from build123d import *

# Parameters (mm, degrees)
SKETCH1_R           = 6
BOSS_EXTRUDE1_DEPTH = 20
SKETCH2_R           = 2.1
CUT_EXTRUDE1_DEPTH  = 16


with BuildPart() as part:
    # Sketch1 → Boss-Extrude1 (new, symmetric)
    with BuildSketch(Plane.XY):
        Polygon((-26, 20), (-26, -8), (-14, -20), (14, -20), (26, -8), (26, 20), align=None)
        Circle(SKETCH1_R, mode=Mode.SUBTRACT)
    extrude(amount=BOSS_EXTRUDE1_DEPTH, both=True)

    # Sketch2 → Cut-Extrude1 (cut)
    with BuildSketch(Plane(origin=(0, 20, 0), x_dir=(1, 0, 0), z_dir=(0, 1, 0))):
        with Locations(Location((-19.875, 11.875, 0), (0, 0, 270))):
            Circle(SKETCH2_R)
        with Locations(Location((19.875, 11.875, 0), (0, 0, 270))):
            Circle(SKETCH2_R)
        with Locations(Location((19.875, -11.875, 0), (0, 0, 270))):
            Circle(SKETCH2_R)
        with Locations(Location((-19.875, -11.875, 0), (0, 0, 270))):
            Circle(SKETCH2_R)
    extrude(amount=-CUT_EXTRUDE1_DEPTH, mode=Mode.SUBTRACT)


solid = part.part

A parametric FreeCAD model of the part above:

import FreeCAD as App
import Part
import Sketcher

V = App.Vector


def add_polygon(sketch, points):
    """Adds a closed chain of lines whose ends are joined by coincident constraints."""
    first, n = sketch.GeometryCount, len(points)
    for a, b in zip(points, points[1:] + points[:1]):
        sketch.addGeometry(Part.LineSegment(App.Vector(*a, 0), App.Vector(*b, 0)), False)
    for i in range(n):
        sketch.addConstraint(Sketcher.Constraint("Coincident", first + i, 2, first + (i + 1) % n, 1))

doc = App.newDocument("Part")
body = doc.addObject("PartDesign::Body", "Body")

sketch1 = body.newObject("Sketcher::SketchObject", "Sketch")
sketch1.AttachmentSupport = (doc.getObject("XY_Plane"), [""])
sketch1.MapMode = "FlatFace"
add_polygon(sketch1, [(-26, 20), (-26, -8), (-14, -20), (14, -20), (26, -8), (26, 20)])
sketch1.addGeometry(Part.Circle(V(0, 0, 0), V(0, 0, 1), 6), False)
sketch1.addConstraint([
    Sketcher.Constraint("Vertical", 0),
    Sketcher.Constraint("Horizontal", 2),
    Sketcher.Constraint("Vertical", 4),
    Sketcher.Constraint("Horizontal", 5),
    Sketcher.Constraint("Coincident", 6, 3, -1, 1),
    Sketcher.Constraint("Symmetric", 0, 2, 3, 2, -2),
    Sketcher.Constraint("Perpendicular", 1, 3),
    Sketcher.Constraint("Equal", 2, 0),
    Sketcher.Constraint("Equal", 1, 3),
    Sketcher.Constraint("Diameter", 6, 12.0),
    Sketcher.Constraint("DistanceX", 2, 1, 2, 2, 28.0),
    Sketcher.Constraint("DistanceX", 5, 2, 5, 1, 52.0),
    Sketcher.Constraint("DistanceY", 0, 2, -1, 1, 8.0),
])
pad1 = body.newObject("PartDesign::Pad", "Pad")
pad1.Profile = sketch1
pad1.Length = 40
pad1.Midplane = True

sketch2 = body.newObject("Sketcher::SketchObject", "Sketch001")
sketch2.AttachmentSupport = (doc.getObject("XZ_Plane"), [""])
sketch2.MapMode = "FlatFace"
sketch2.AttachmentOffset = App.Placement(V(0, 0, -20), App.Rotation())
sketch2.addGeometry([
    Part.Circle(V(-19.9, -11.9, 0), V(0, 0, 1), 2.1),
    Part.Circle(V(19.9, -11.9, 0), V(0, 0, 1), 2.1),
    Part.Circle(V(19.9, 11.9, 0), V(0, 0, 1), 2.1),
    Part.Circle(V(-19.9, 11.9, 0), V(0, 0, 1), 2.1),
], False)
sketch2.addConstraint([
    Sketcher.Constraint("Equal", 0, 1),
    Sketcher.Constraint("Equal", 1, 2),
    Sketcher.Constraint("Equal", 2, 3),
    Sketcher.Constraint("Symmetric", 0, 3, 2, 3, -1, 1),
    Sketcher.Constraint("Symmetric", 1, 3, 3, 3, -1, 1),
    Sketcher.Constraint("Symmetric", 0, 3, 1, 3, -2),
    Sketcher.Constraint("Diameter", 0, 4.2),
    Sketcher.Constraint("DistanceX", 0, 3, 1, 3, 39.75),
    Sketcher.Constraint("DistanceY", 1, 3, 2, 3, 23.75),
])
pocket1 = body.newObject("PartDesign::Pocket", "Pocket")
pocket1.Profile = sketch2
pocket1.Length = 16
pocket1.Reversed = True

doc.recompute()
